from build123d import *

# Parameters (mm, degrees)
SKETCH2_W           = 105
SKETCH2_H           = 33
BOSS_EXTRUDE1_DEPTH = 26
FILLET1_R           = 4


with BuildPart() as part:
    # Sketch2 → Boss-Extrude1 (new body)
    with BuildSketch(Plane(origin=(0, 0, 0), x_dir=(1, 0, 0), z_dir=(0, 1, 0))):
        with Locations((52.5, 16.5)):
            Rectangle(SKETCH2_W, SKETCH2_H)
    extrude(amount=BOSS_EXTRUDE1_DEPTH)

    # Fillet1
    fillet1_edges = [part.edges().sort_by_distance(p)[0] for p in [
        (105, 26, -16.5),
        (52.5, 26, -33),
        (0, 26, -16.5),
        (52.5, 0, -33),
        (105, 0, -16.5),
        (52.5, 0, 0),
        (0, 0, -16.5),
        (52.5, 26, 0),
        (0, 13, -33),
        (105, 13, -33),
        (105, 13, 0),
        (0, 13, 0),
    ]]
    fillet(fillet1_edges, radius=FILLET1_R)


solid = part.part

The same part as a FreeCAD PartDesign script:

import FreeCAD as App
import Part
import Sketcher
from FreeCAD import Vector
Q = App.Units.Quantity

doc = App.newDocument("Part")
body = doc.addObject("PartDesign::Body", "Body")

# Sketch on XZ plane
sketch1 = body.newObject("Sketcher::SketchObject", "Sketch")
sketch1.AttachmentSupport = (doc.getObject("XZ_Plane"), [""])
sketch1.MapMode = "FlatFace"
sketch1.addGeometry([
    Part.LineSegment(Vector(0, -33, 0), Vector(0, 0, 0)),
    Part.LineSegment(Vector(0, 0, 0), Vector(105, 0, 0)),
    Part.LineSegment(Vector(105, 0, 0), Vector(105, -33, 0)),
    Part.LineSegment(Vector(105, -33, 0), Vector(0, -33, 0)),
], False)
sketch1.addConstraint([
    Sketcher.Constraint("Coincident", 0, 2, 1, 1),
    Sketcher.Constraint("Coincident", 1, 2, 2, 1),
    Sketcher.Constraint("Coincident", 2, 2, 3, 1),
    Sketcher.Constraint("Coincident", 3, 2, 0, 1),
    Sketcher.Constraint("Vertical", 0),
    Sketcher.Constraint("Horizontal", 1),
    Sketcher.Constraint("Vertical", 2),
    Sketcher.Constraint("Horizontal", 3),
    Sketcher.Constraint("Coincident", 0, 2, -1, 1),
    Sketcher.Constraint("DistanceX", 1, 1, 1, 2, Q("105 mm")),
    Sketcher.Constraint("DistanceY", 0, 1, 0, 2, Q("33 mm")),
])
pad1 = body.newObject("PartDesign::Pad", "Pad")
pad1.Profile = sketch1
pad1.Length = 26
pad1.Reversed = True
doc.recompute()

fillet = body.newObject("PartDesign::Fillet", "Fillet")
fillet.Base = (pad1, ["Edge1"])
fillet.UseAllEdges = True
fillet.Radius = 4

doc.recompute()
